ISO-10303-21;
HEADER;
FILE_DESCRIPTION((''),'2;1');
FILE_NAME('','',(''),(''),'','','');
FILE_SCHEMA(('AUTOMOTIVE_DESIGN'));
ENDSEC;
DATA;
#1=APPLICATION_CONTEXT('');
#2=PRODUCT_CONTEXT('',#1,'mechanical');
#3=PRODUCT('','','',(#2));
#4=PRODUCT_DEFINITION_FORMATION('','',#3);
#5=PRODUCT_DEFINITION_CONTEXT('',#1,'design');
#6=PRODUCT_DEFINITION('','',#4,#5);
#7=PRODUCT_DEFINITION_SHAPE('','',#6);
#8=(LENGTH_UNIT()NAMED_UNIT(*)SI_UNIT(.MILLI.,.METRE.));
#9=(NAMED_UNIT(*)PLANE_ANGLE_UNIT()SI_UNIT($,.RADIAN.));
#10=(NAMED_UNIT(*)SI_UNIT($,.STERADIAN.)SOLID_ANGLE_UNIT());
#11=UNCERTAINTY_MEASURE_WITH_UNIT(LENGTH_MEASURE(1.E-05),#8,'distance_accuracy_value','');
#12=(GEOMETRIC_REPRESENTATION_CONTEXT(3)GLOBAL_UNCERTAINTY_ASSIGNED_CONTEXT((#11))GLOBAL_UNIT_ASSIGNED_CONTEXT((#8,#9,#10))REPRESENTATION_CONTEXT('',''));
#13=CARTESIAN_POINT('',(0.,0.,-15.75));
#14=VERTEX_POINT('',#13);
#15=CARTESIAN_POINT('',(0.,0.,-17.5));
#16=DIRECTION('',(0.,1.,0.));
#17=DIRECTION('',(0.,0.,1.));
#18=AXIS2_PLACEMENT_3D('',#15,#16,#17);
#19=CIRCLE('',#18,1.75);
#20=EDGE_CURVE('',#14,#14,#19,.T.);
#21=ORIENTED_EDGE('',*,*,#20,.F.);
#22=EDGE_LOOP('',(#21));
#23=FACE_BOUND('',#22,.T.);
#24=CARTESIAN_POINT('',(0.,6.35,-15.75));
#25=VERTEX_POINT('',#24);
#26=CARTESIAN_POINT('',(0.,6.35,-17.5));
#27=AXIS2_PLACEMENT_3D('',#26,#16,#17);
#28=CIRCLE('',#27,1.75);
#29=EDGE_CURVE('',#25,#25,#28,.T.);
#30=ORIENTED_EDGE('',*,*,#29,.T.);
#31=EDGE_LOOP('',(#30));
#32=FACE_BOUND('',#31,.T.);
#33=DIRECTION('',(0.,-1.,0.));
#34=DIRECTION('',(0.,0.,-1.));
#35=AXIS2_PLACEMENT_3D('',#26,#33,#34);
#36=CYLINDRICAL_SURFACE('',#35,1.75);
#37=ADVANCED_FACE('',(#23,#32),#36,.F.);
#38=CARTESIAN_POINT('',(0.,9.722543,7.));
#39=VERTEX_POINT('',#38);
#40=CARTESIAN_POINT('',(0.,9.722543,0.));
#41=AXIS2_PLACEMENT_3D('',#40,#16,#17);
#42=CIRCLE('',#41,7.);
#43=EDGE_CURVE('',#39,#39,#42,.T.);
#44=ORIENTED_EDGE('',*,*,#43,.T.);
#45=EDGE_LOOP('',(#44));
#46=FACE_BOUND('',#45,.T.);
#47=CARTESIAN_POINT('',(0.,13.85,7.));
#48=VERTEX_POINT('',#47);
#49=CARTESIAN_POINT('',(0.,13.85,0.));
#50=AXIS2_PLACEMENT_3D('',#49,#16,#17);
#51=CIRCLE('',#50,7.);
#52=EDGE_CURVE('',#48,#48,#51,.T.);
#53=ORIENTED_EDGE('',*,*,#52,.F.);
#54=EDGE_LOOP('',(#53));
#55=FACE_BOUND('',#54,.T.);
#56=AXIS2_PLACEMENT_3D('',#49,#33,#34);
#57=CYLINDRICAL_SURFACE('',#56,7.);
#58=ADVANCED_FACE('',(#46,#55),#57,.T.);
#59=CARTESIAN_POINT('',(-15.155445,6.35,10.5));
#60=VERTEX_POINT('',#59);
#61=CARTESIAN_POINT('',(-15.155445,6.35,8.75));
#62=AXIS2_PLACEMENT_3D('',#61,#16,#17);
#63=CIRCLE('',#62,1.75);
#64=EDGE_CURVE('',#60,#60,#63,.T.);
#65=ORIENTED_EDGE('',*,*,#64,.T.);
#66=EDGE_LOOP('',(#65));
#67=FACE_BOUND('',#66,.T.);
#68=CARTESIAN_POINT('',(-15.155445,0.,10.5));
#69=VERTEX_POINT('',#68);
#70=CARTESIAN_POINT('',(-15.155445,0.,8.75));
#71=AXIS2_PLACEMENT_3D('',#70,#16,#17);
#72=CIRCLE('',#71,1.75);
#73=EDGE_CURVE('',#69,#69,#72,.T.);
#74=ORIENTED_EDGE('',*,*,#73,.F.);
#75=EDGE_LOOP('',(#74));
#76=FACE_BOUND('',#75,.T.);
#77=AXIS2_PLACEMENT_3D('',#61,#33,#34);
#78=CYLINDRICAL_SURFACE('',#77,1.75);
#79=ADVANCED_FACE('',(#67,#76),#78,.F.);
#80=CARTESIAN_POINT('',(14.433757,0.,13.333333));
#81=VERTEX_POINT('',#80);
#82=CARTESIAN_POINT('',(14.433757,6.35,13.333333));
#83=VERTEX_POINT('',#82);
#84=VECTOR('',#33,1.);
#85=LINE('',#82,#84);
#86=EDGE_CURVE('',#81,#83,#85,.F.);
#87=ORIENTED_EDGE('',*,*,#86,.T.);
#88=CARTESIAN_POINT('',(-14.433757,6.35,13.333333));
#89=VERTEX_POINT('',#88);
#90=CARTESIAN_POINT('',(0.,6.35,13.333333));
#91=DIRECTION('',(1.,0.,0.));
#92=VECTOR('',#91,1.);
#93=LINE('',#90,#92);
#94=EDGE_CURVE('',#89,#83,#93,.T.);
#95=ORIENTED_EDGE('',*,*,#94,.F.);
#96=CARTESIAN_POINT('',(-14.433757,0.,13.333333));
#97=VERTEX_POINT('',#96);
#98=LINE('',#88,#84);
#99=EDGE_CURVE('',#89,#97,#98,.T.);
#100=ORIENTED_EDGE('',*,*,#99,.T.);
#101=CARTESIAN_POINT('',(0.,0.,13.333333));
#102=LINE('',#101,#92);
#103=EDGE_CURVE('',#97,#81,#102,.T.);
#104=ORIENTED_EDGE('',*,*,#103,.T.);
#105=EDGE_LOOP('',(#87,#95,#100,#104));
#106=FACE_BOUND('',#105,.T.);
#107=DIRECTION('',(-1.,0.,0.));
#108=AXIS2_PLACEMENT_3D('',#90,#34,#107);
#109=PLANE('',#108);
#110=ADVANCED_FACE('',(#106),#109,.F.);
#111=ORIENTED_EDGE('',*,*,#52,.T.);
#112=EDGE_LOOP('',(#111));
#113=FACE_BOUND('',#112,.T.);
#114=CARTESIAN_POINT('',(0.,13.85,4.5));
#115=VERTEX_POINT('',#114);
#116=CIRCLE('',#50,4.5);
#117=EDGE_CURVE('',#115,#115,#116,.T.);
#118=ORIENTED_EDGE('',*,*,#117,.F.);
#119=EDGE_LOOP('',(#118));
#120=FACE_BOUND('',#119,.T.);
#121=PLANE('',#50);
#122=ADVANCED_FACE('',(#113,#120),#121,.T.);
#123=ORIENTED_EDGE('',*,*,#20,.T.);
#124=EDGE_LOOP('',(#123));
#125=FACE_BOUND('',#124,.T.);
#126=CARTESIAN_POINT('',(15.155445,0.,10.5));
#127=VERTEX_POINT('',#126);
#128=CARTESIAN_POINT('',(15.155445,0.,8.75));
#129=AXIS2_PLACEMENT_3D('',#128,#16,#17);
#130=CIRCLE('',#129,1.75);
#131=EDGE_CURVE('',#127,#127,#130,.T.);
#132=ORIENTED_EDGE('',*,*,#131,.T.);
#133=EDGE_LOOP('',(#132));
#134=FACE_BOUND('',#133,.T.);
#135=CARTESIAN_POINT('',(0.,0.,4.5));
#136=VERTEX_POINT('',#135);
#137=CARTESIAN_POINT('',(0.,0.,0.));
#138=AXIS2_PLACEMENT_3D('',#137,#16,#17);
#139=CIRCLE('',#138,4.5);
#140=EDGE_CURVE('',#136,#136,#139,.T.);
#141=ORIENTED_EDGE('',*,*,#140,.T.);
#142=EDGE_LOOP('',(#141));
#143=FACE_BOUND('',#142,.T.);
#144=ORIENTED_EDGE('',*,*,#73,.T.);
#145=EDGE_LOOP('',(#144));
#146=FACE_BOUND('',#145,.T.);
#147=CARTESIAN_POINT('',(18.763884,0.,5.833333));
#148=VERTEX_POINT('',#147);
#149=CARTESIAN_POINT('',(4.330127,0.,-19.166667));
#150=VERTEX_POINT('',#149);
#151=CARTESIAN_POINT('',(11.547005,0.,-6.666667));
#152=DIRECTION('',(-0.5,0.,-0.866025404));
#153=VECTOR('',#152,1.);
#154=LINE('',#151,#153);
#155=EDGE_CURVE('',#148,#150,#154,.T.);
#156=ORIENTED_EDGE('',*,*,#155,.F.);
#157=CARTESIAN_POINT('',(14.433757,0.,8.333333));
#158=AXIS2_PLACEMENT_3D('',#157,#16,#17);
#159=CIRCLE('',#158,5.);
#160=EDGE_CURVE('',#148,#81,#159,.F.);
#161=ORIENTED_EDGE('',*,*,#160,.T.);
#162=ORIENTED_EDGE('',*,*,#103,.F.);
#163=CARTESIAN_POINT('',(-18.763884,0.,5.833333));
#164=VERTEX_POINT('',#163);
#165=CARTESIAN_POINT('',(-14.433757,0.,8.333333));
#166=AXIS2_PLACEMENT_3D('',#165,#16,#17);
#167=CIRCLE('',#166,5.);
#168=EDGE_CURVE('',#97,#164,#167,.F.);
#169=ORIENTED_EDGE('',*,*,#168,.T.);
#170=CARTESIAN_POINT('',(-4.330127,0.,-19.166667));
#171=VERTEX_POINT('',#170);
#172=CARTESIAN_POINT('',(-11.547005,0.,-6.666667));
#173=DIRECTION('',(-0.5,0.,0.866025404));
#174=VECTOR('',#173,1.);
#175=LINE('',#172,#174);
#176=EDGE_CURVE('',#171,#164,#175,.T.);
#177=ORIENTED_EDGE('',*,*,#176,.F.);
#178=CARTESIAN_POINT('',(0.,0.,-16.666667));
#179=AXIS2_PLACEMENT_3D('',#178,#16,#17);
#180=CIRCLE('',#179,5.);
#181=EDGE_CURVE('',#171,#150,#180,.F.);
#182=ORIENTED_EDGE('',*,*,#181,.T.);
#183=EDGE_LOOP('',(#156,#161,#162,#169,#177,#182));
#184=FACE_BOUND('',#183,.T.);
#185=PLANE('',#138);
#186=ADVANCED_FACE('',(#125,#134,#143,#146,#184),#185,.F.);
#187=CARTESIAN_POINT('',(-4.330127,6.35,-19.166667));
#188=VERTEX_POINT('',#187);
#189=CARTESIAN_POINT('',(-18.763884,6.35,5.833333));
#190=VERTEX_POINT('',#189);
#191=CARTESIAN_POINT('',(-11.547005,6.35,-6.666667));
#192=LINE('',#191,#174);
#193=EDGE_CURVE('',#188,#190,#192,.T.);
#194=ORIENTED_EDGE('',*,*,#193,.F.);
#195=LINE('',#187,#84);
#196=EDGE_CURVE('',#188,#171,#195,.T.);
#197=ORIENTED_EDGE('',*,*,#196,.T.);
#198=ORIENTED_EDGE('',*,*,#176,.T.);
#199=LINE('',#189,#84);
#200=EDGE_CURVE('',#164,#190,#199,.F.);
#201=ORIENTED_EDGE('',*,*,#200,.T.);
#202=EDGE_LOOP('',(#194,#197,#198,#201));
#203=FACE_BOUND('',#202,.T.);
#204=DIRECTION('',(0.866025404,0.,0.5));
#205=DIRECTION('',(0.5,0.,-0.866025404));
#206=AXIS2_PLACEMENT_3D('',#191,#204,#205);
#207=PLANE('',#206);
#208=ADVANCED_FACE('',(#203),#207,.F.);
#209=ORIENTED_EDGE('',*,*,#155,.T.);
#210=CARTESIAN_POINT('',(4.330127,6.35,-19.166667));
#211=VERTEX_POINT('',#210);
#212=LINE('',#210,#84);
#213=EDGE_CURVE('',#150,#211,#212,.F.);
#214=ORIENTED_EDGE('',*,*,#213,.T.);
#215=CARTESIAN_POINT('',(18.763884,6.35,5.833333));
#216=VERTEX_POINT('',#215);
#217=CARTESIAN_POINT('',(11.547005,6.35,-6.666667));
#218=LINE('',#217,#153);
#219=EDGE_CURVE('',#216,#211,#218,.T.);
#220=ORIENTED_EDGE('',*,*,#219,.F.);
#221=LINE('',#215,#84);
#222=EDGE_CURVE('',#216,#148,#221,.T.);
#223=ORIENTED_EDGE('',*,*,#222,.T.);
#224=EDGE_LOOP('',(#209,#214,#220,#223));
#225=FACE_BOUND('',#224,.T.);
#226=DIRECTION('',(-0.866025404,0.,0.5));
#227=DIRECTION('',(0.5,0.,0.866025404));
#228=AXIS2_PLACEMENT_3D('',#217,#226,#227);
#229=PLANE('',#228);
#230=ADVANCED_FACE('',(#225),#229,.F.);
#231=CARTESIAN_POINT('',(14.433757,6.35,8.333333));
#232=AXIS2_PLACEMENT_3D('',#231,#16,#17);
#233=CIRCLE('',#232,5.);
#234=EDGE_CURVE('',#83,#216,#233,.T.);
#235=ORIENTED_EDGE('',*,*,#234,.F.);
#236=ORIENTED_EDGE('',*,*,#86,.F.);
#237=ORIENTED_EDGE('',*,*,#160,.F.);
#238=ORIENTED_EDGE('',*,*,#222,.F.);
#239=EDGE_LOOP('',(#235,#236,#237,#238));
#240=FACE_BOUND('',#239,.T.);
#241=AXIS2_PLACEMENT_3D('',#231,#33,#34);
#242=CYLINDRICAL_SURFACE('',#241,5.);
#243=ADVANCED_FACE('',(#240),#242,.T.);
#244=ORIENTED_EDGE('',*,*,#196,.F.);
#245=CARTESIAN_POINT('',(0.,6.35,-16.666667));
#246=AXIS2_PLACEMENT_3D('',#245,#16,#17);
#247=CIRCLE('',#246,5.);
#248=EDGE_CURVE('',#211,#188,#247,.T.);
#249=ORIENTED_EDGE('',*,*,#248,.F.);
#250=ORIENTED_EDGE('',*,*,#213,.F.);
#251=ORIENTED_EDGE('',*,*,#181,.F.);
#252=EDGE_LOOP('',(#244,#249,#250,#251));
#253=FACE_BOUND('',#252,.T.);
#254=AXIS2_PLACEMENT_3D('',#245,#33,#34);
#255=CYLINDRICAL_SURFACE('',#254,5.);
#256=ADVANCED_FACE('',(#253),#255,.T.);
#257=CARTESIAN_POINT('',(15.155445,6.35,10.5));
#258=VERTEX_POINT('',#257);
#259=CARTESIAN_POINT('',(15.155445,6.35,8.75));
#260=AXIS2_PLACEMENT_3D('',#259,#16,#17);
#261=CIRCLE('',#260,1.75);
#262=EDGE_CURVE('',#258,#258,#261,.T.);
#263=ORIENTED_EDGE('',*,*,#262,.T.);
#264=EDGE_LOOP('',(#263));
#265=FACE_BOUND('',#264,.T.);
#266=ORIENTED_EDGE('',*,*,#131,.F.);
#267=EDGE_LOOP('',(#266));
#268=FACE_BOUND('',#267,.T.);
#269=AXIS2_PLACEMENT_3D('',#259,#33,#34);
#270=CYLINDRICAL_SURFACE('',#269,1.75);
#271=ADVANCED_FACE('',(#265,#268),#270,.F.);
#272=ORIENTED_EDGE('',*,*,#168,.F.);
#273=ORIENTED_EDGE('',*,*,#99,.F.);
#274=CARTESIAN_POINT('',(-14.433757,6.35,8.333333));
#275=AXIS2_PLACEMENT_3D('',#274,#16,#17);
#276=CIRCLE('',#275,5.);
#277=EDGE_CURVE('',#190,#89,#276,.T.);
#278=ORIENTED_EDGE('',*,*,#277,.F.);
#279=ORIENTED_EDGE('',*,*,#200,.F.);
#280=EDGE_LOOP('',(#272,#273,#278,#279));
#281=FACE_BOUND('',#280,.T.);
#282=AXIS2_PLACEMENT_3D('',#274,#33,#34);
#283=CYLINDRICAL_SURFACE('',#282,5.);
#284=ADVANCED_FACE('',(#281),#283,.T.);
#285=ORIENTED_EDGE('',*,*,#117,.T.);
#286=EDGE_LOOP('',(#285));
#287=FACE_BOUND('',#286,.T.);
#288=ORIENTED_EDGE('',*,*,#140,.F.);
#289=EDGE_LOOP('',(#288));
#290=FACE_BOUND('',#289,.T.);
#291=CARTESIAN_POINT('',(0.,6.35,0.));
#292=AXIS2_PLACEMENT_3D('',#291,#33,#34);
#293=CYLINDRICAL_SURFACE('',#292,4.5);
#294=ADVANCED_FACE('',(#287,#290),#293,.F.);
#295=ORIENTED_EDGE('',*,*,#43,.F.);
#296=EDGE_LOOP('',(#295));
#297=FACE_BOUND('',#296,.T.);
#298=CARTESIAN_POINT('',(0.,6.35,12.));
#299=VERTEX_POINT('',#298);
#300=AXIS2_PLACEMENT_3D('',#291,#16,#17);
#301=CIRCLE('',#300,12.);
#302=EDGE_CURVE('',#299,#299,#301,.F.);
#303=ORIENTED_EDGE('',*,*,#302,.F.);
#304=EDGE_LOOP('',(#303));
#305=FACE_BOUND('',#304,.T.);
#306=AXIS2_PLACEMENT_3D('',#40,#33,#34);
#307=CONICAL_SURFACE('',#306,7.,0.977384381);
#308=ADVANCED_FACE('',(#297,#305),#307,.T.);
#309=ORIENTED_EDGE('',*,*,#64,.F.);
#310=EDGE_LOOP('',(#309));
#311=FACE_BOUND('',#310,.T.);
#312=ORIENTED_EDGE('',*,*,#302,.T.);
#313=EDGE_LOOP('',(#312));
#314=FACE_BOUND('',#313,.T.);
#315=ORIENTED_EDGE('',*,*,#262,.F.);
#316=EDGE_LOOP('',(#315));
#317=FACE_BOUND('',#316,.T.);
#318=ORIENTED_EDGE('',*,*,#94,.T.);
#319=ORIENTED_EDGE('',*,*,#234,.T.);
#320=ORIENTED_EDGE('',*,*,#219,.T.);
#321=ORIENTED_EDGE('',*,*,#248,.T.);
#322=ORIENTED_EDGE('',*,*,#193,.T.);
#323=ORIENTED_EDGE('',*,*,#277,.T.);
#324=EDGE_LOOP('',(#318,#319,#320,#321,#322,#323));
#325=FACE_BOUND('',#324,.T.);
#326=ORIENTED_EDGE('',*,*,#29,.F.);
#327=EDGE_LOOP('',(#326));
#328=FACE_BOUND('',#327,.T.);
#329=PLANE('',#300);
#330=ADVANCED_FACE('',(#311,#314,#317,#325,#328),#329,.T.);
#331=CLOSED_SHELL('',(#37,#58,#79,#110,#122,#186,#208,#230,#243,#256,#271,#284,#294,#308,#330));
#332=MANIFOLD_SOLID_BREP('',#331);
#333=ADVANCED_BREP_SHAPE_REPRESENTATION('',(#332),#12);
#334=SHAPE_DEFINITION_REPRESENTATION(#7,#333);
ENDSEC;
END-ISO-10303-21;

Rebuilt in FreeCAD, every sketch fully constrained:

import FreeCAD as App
import Part
import Sketcher
Q = App.Units.Quantity


def edges_at(feature, points):
    """Names of the edges that pass closest to the given points."""
    edges = feature.Shape.Edges
    near = lambda p: min(range(len(edges)), key=lambda i: edges[i].distToShape(Part.Vertex(*p))[0])
    return sorted({f"Edge{near(p) + 1}" for p in points})


def add_polygon(sketch, points):
    """Adds a closed chain of lines whose ends are joined by coincident constraints."""
    first, n = sketch.GeometryCount, len(points)
    for a, b in zip(points, points[1:] + points[:1]):
        sketch.addGeometry(Part.LineSegment(App.Vector(*a, 0), App.Vector(*b, 0)), False)
    for i in range(n):
        sketch.addConstraint(Sketcher.Constraint("Coincident", first + i, 2, first + (i + 1) % n, 1))

doc = App.newDocument("Part")
body = doc.addObject("PartDesign::Body", "Body")

sketch1 = doc.addObject("Sketcher::SketchObject", "Sketch")
body.addObject(sketch1)
sketch1.AttachmentSupport = (doc.XZ_Plane, [""])
sketch1.MapMode = "FlatFace"
add_polygon(sketch1, [(-23.094011, 13.333333), (23.094011, 13.333333), (0, -26.666667)])
sketch1.addGeometry(Part.Circle(App.Vector(-15.155445, 8.75, 0), App.Vector(0, 0, 1), 1.75), False)
sketch1.addGeometry(Part.Circle(App.Vector(15.155445, 8.75, 0), App.Vector(0, 0, 1), 1.75), False)
sketch1.addGeometry(Part.Circle(App.Vector(0, 0, 0), App.Vector(0, 0, 1), 4.5), False)
sketch1.addGeometry(Part.Circle(App.Vector(0, -17.5, 0), App.Vector(0, 0, 1), 1.75), False)
sketch1.addConstraint([
    Sketcher.Constraint("Horizontal", 0),
    Sketcher.Constraint("Coincident", 5, 3, -1, 1),
    Sketcher.Constraint("Equal", 3, 4),
    Sketcher.Constraint("Equal", 4, 6),
    Sketcher.Constraint("Symmetric", 3, 3, 4, 3, -2),
    Sketcher.Constraint("PointOnObject", 6, 3, -2),
    Sketcher.Constraint("PointOnObject", 1, 2, -2),
    Sketcher.Constraint("Equal", 1, 2),
    Sketcher.Constraint("Diameter", 5, Q("9 mm")),
    Sketcher.Constraint("Diameter", 3, Q("3.5 mm")),
    Sketcher.Constraint("Angle", 1, Q("-120 deg")),
    Sketcher.Constraint("DistanceY", 1, 2, 0, 2, Q("40 mm")),
    Sketcher.Constraint("DistanceY", 6, 3, -1, 1, Q("17.5 mm")),
    Sketcher.Constraint("DistanceY", -1, 1, 3, 3, Q("8.75 mm")),
    Sketcher.Constraint("DistanceX", 3, 3, 4, 3, Q("30.310889 mm")),
    Sketcher.Constraint("DistanceY", -1, 1, 0, 2, Q("13.333333 mm")),
])
pad1 = doc.addObject("PartDesign::Pad", "Pad")
body.addObject(pad1)
pad1.Profile = sketch1
pad1.Length = 6.35
pad1.Reversed = True
doc.recompute()

fillet = doc.addObject("PartDesign::Fillet", "Fillet")
body.addObject(fillet)
fillet.Base = (pad1, edges_at(pad1, [(-23.094, 3.175, 13.333), (0, 3.175, -26.667), (23.094, 3.175, 13.333)]))
fillet.Radius = 5

sketch2 = doc.addObject("Sketcher::SketchObject", "Sketch001")
body.addObject(sketch2)
sketch2.AttachmentSupport = (doc.XZ_Plane, [""])
sketch2.MapMode = "FlatFace"
sketch2.AttachmentOffset = App.Placement(App.Vector(0, 0, -6.35), App.Rotation())
sketch2.addGeometry([
    Part.Circle(App.Vector(0, 0, 0), App.Vector(0, 0, 1), 7),
    Part.Circle(App.Vector(0, 0, 0), App.Vector(0, 0, 1), 4.5),
], False)
sketch2.addConstraint([
    Sketcher.Constraint("Coincident", 0, 3, -1, 1),
    Sketcher.Constraint("Coincident", 1, 3, -1, 1),
    Sketcher.Constraint("Diameter", 0, Q("14 mm")),
    Sketcher.Constraint("Diameter", 1, Q("9 mm")),
])
pad2 = doc.addObject("PartDesign::Pad", "Pad001")
body.addObject(pad2)
pad2.Profile = sketch2
pad2.Length = 7.5
pad2.Reversed = True
doc.recompute()

chamfer = doc.addObject("PartDesign::Chamfer", "Chamfer")
body.addObject(chamfer)
chamfer.Base = (pad2, edges_at(pad2, [(0, 6.35, -7)]))
chamfer.ChamferType = "Two distances"
chamfer.Size = 5
chamfer.Size2 = 3.372543

doc.recompute()
